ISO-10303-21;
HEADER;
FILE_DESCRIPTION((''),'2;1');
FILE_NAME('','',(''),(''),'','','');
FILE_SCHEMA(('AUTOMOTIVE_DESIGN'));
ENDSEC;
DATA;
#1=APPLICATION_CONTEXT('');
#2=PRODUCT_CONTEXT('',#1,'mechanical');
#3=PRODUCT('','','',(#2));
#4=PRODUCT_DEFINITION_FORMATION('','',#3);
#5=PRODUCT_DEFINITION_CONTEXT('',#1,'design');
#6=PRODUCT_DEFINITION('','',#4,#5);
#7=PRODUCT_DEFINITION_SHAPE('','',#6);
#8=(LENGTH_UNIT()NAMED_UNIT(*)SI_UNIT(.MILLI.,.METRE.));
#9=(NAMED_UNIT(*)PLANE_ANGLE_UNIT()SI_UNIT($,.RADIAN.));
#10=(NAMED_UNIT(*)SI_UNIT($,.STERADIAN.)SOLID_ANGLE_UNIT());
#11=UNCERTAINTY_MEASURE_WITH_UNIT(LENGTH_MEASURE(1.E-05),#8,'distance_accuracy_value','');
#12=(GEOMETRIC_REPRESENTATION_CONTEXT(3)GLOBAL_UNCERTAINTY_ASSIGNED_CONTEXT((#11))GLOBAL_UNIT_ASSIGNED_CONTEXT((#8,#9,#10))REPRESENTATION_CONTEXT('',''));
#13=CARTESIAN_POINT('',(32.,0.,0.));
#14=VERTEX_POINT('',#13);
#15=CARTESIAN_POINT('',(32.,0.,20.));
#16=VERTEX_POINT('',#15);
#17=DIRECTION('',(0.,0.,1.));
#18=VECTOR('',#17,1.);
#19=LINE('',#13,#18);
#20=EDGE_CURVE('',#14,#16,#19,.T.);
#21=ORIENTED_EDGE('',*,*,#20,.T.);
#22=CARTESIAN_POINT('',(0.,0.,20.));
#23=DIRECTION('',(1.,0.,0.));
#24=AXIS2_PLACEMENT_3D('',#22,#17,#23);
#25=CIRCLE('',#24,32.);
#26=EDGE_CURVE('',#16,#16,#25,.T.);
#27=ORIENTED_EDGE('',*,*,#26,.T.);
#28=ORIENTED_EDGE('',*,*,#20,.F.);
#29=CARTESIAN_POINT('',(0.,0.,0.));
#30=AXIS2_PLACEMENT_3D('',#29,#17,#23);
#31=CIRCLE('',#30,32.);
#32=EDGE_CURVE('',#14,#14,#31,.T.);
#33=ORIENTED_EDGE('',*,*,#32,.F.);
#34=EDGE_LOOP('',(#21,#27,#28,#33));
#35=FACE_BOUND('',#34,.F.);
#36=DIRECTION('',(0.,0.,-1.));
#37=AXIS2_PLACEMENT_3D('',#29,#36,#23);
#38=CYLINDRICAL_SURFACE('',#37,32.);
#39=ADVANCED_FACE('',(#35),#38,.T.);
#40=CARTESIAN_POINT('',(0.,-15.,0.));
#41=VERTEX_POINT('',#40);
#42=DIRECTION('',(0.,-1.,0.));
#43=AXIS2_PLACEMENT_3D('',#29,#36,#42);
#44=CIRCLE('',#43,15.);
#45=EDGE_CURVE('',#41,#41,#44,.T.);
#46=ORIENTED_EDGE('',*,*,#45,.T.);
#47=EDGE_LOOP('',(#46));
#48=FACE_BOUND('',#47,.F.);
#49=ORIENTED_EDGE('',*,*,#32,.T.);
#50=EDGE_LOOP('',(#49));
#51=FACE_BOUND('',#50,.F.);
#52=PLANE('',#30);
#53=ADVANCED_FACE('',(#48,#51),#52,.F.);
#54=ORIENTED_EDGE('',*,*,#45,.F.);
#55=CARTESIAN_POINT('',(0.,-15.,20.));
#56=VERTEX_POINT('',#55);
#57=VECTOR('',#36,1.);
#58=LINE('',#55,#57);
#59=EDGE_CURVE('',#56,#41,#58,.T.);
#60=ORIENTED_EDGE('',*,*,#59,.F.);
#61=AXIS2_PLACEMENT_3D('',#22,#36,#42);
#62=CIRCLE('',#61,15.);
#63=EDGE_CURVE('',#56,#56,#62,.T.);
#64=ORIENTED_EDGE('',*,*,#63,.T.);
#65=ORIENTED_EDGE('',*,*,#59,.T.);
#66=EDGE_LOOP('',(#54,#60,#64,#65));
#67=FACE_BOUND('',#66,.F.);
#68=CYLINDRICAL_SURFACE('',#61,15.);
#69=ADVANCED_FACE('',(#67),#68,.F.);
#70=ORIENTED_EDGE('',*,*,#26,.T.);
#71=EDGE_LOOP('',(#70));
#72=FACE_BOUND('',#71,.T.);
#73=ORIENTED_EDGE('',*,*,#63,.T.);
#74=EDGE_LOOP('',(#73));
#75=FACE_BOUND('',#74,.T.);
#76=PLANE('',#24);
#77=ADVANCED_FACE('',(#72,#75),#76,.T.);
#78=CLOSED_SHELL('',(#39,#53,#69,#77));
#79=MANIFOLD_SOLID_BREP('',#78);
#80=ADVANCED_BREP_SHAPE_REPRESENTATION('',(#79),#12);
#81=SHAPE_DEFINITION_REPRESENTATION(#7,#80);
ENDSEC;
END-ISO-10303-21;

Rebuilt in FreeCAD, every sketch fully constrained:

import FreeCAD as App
import Part
import Sketcher

doc = App.newDocument("Part")
params = doc.addObject("Spreadsheet::Sheet", "Params")
for row, (alias, value) in enumerate([
    ("sketch1_diameter", "64 mm"),
    ("pad1_length", "20 mm"),
    ("sketch2_diameter", "30 mm"),
    ("hole_diameter", "30 mm"),
], start=1):
    params.set(f"A{row}", alias)
    params.set(f"B{row}", "=" + value)
    params.setAlias(f"B{row}", alias)

body = doc.addObject("PartDesign::Body", "Body")

# Sketch on XY plane
sketch1 = body.newObject("Sketcher::SketchObject", "Sketch")
sketch1.AttachmentSupport = (doc.getObject("XY_Plane"), [""])
sketch1.MapMode = "FlatFace"
sketch1.addGeometry(Part.Circle(App.Vector(0, 0, 0), App.Vector(0, 0, 1), 32), False)
sketch1.addConstraint([
    Sketcher.Constraint("Coincident", 0, 3, -1, 1),
    Sketcher.Constraint("Diameter", 0, 64.0),
])
sketch1.setExpression("Constraints[1]", "Params.sketch1_diameter")
pad1 = body.newObject("PartDesign::Pad", "Pad")
pad1.Profile = sketch1
pad1.setExpression("Length", "Params.pad1_length")

# Sketch on XY plane
sketch2 = body.newObject("Sketcher::SketchObject", "Sketch001")
sketch2.AttachmentSupport = (doc.getObject("XY_Plane"), [""])
sketch2.MapMode = "FlatFace"
sketch2.AttachmentOffset = App.Placement(App.Vector(0, 0, 20), App.Rotation())
sketch2.addGeometry(Part.Circle(App.Vector(0, 0, 0), App.Vector(0, 0, 1), 15), False)
sketch2.addConstraint([
    Sketcher.Constraint("Coincident", 0, 3, -1, 1),
    Sketcher.Constraint("Diameter", 0, 30.0),
])
sketch2.setExpression("Constraints[1]", "Params.sketch2_diameter")
doc.recompute()
hole = body.newObject("PartDesign::Hole", "Hole")
hole.Profile = sketch2
hole.ThreadType = "None"
hole.setExpression("Diameter", "Params.hole_diameter")
hole.DepthType = "ThroughAll"

doc.recompute()
